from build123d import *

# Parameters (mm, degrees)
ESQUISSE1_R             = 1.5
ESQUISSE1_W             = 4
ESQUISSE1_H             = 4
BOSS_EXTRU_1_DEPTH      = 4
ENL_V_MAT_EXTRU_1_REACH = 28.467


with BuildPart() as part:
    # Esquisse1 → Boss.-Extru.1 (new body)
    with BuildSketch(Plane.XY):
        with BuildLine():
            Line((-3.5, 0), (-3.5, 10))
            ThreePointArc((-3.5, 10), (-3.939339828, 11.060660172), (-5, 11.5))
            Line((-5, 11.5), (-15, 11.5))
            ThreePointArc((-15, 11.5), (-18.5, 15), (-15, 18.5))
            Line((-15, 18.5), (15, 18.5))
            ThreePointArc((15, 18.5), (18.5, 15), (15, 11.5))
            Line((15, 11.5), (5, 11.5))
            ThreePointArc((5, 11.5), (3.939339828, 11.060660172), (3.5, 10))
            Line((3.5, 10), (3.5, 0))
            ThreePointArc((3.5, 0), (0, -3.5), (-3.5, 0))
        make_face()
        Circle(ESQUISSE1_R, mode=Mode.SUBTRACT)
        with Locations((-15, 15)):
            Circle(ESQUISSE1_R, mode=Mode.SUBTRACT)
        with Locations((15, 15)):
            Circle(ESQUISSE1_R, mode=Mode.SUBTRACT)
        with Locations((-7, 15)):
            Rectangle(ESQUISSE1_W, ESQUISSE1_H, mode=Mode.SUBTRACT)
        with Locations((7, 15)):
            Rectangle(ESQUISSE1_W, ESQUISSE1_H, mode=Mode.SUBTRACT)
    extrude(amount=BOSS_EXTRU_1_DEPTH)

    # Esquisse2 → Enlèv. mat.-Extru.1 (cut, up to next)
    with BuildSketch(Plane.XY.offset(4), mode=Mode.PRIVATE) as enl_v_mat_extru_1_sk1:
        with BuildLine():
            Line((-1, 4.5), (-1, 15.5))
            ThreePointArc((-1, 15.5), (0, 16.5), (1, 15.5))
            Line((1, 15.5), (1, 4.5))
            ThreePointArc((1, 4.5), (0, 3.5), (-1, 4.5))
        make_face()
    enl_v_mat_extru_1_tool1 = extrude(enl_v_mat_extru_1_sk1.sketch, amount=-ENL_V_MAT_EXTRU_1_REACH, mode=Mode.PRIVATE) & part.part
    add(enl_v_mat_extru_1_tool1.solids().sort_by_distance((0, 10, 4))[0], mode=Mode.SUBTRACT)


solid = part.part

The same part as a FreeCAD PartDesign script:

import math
import FreeCAD as App
import Part
import Sketcher
from FreeCAD import Vector

doc = App.newDocument("Part")
body = doc.addObject("PartDesign::Body", "Body")

sketch1 = doc.addObject("Sketcher::SketchObject", "Sketch")
body.addObject(sketch1)
sketch1.AttachmentSupport = (doc.XY_Plane, [""])
sketch1.MapMode = "FlatFace"
sketch1.addGeometry(Part.LineSegment(Vector(-3.5, 10, 0), Vector(-3.5, 0, 0)), False)
sketch1.addGeometry(Part.ArcOfCircle(Part.Circle(Vector(0, 0, 0), Vector(0, 0, 1), 3.5), math.radians(180), math.radians(360)), False)
sketch1.addGeometry(Part.LineSegment(Vector(3.5, 0, 0), Vector(3.5, 10, 0)), False)
sketch1.addGeometry(Part.ArcOfCircle(Part.Circle(Vector(5, 10, 0), Vector(0, 0, 1), 1.5), math.radians(90), math.radians(180)), False)
sketch1.addGeometry(Part.LineSegment(Vector(5, 11.5, 0), Vector(15, 11.5, 0)), False)
sketch1.addGeometry(Part.ArcOfCircle(Part.Circle(Vector(15, 15, 0), Vector(0, 0, 1), 3.5), math.radians(-90), math.radians(90)), False)
sketch1.addGeometry(Part.LineSegment(Vector(15, 18.5, 0), Vector(-15, 18.5, 0)), False)
sketch1.addGeometry(Part.ArcOfCircle(Part.Circle(Vector(-15, 15, 0), Vector(0, 0, 1), 3.5), math.radians(90), math.radians(270)), False)
sketch1.addGeometry(Part.LineSegment(Vector(-15, 11.5, 0), Vector(-5, 11.5, 0)), False)
sketch1.addGeometry(Part.ArcOfCircle(Part.Circle(Vector(-5, 10, 0), Vector(0, 0, 1), 1.5), math.radians(0), math.radians(90)), False)
sketch1.addGeometry(Part.Circle(Vector(0, 0, 0), Vector(0, 0, 1), 1.5), False)
sketch1.addGeometry(Part.Circle(Vector(15, 15, 0), Vector(0, 0, 1), 1.5), False)
sketch1.addGeometry(Part.LineSegment(Vector(5, 13, 0), Vector(5, 17, 0)), False)
sketch1.addGeometry(Part.LineSegment(Vector(5, 17, 0), Vector(9, 17, 0)), False)
sketch1.addGeometry(Part.LineSegment(Vector(9, 17, 0), Vector(9, 13, 0)), False)
sketch1.addGeometry(Part.LineSegment(Vector(9, 13, 0), Vector(5, 13, 0)), False)
sketch1.addGeometry(Part.LineSegment(Vector(-9, 13, 0), Vector(-9, 17, 0)), False)
sketch1.addGeometry(Part.LineSegment(Vector(-9, 17, 0), Vector(-5, 17, 0)), False)
sketch1.addGeometry(Part.LineSegment(Vector(-5, 17, 0), Vector(-5, 13, 0)), False)
sketch1.addGeometry(Part.LineSegment(Vector(-5, 13, 0), Vector(-9, 13, 0)), False)
sketch1.addGeometry(Part.Circle(Vector(-15, 15, 0), Vector(0, 0, 1), 1.5), False)
sketch1.addConstraint(Sketcher.Constraint("Tangent", 0, 2, 1, 1))
sketch1.addConstraint(Sketcher.Constraint("Tangent", 1, 2, 2, 1))
sketch1.addConstraint(Sketcher.Constraint("Tangent", 2, 2, 3, 2))
sketch1.addConstraint(Sketcher.Constraint("Tangent", 3, 1, 4, 1))
sketch1.addConstraint(Sketcher.Constraint("Tangent", 4, 2, 5, 1))
sketch1.addConstraint(Sketcher.Constraint("Tangent", 5, 2, 6, 1))
sketch1.addConstraint(Sketcher.Constraint("Tangent", 6, 2, 7, 1))
sketch1.addConstraint(Sketcher.Constraint("Tangent", 7, 2, 8, 1))
sketch1.addConstraint(Sketcher.Constraint("Tangent", 8, 2, 9, 2))
sketch1.addConstraint(Sketcher.Constraint("Tangent", 9, 1, 0, 1))
sketch1.addConstraint(Sketcher.Constraint("Coincident", 12, 2, 13, 1))
sketch1.addConstraint(Sketcher.Constraint("Coincident", 13, 2, 14, 1))
sketch1.addConstraint(Sketcher.Constraint("Coincident", 14, 2, 15, 1))
sketch1.addConstraint(Sketcher.Constraint("Coincident", 15, 2, 12, 1))
sketch1.addConstraint(Sketcher.Constraint("Coincident", 16, 2, 17, 1))
sketch1.addConstraint(Sketcher.Constraint("Coincident", 17, 2, 18, 1))
sketch1.addConstraint(Sketcher.Constraint("Coincident", 18, 2, 19, 1))
sketch1.addConstraint(Sketcher.Constraint("Coincident", 19, 2, 16, 1))
sketch1.addConstraint(Sketcher.Constraint("Vertical", 0))
sketch1.addConstraint(Sketcher.Constraint("Vertical", 2))
sketch1.addConstraint(Sketcher.Constraint("Horizontal", 4))
sketch1.addConstraint(Sketcher.Constraint("Horizontal", 6))
sketch1.addConstraint(Sketcher.Constraint("Horizontal", 8))
sketch1.addConstraint(Sketcher.Constraint("Vertical", 12))
sketch1.addConstraint(Sketcher.Constraint("Horizontal", 13))
sketch1.addConstraint(Sketcher.Constraint("Vertical", 14))
sketch1.addConstraint(Sketcher.Constraint("Horizontal", 15))
sketch1.addConstraint(Sketcher.Constraint("Vertical", 16))
sketch1.addConstraint(Sketcher.Constraint("Horizontal", 17))
sketch1.addConstraint(Sketcher.Constraint("Vertical", 18))
sketch1.addConstraint(Sketcher.Constraint("Horizontal", 19))
sketch1.addConstraint(Sketcher.Constraint("Coincident", 1, 3, -1, 1))
sketch1.addConstraint(Sketcher.Constraint("Coincident", 10, 3, -1, 1))
sketch1.addConstraint(Sketcher.Constraint("Coincident", 11, 3, 5, 3))
sketch1.addConstraint(Sketcher.Constraint("Coincident", 20, 3, 7, 3))
sketch1.addConstraint(Sketcher.Constraint("Equal", 1, 5))
sketch1.addConstraint(Sketcher.Constraint("Equal", 5, 7))
sketch1.addConstraint(Sketcher.Constraint("Equal", 3, 9))
sketch1.addConstraint(Sketcher.Constraint("Equal", 9, 10))
sketch1.addConstraint(Sketcher.Constraint("Equal", 10, 11))
sketch1.addConstraint(Sketcher.Constraint("Equal", 11, 20))
sketch1.addConstraint(Sketcher.Constraint("Symmetric", 13, 2, 16, 2, -2))
sketch1.addConstraint(Sketcher.Constraint("Symmetric", 15, 2, 18, 2, -2))
sketch1.addConstraint(Sketcher.Constraint("Vertical", 3, 1, 12, 2))
sketch1.addConstraint(Sketcher.Constraint("Equal", 4, 8))
sketch1.addConstraint(Sketcher.Constraint("Equal", 8, 0))
sketch1.addConstraint(Sketcher.Constraint("Equal", 19, 12))
sketch1.addConstraint(Sketcher.Constraint("Diameter", 10, 3.0))
sketch1.addConstraint(Sketcher.Constraint("Radius", 1, 3.5))
sketch1.addConstraint(Sketcher.Constraint("DistanceX", 4, 1, 4, 2, 10.0))
sketch1.addConstraint(Sketcher.Constraint("DistanceX", 13, 1, 13, 2, 4.0))
sketch1.addConstraint(Sketcher.Constraint("DistanceY", -1, 1, 12, 2, 17.0))
pad1 = doc.addObject("PartDesign::Pad", "Pad")
body.addObject(pad1)
pad1.Profile = sketch1
pad1.Length = 4

sketch2 = doc.addObject("Sketcher::SketchObject", "Sketch001")
body.addObject(sketch2)
sketch2.AttachmentSupport = (doc.XY_Plane, [""])
sketch2.MapMode = "FlatFace"
sketch2.AttachmentOffset = App.Placement(Vector(0, 0, 4), App.Rotation())
sketch2.addGeometry(Part.LineSegment(Vector(-1, 15.5, 0), Vector(-1, 4.5, 0)), False)
sketch2.addGeometry(Part.ArcOfCircle(Part.Circle(Vector(0, 4.5, 0), Vector(0, 0, 1), 1), math.radians(180), math.radians(360)), False)
sketch2.addGeometry(Part.LineSegment(Vector(1, 4.5, 0), Vector(1, 15.5, 0)), False)
sketch2.addGeometry(Part.ArcOfCircle(Part.Circle(Vector(0, 15.5, 0), Vector(0, 0, 1), 1), math.radians(0), math.radians(180)), False)
sketch2.addConstraint(Sketcher.Constraint("Tangent", 0, 2, 1, 1))
sketch2.addConstraint(Sketcher.Constraint("Tangent", 1, 2, 2, 1))
sketch2.addConstraint(Sketcher.Constraint("Tangent", 2, 2, 3, 1))
sketch2.addConstraint(Sketcher.Constraint("Tangent", 3, 2, 0, 1))
sketch2.addConstraint(Sketcher.Constraint("Vertical", 0))
sketch2.addConstraint(Sketcher.Constraint("Vertical", 2))
sketch2.addConstraint(Sketcher.Constraint("PointOnObject", 1, 3, -2))
sketch2.addConstraint(Sketcher.Constraint("Radius", 1, 1.0))
sketch2.addConstraint(Sketcher.Constraint("DistanceY", 0, 2, 0, 1, 11.0))
sketch2.addConstraint(Sketcher.Constraint("DistanceY", -1, 1, 1, 3, 4.5))
pocket1 = doc.addObject("PartDesign::Pocket", "Pocket")
body.addObject(pocket1)
pocket1.Profile = sketch2
pocket1.Type = "UpToFirst"

doc.recompute()
